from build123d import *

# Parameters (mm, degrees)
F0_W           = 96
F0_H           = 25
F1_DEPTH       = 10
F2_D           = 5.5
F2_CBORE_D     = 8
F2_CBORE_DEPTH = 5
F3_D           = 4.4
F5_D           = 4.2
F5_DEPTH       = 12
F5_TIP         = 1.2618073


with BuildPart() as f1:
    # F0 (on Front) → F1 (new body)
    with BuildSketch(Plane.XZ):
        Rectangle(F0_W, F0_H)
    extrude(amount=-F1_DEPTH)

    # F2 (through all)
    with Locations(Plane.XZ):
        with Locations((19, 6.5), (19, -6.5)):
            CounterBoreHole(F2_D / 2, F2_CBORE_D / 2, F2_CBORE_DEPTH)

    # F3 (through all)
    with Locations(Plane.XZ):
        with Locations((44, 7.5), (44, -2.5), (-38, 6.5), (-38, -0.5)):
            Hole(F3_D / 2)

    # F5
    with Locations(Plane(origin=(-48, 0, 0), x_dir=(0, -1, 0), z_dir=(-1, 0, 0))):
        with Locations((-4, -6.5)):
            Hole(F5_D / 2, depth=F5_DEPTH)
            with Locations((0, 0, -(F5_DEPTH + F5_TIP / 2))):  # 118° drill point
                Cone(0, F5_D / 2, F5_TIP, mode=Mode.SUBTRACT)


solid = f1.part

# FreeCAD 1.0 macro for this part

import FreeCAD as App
import Part
import Sketcher

V = App.Vector
Q = App.Units.Quantity

doc = App.newDocument("Part")
body = doc.addObject("PartDesign::Body", "Body")

# Sketch on XZ plane
sketch1 = body.newObject("Sketcher::SketchObject", "Sketch")
sketch1.AttachmentSupport = (doc.getObject("XZ_Plane"), [""])
sketch1.MapMode = "FlatFace"
sketch1.addGeometry([
    Part.LineSegment(V(-48, 12, 0), V(-48, -12, 0)),
    Part.LineSegment(V(-48, -12, 0), V(48, -12, 0)),
    Part.LineSegment(V(48, -12, 0), V(48, 12, 0)),
    Part.LineSegment(V(48, 12, 0), V(-48, 12, 0)),
], False)
sketch1.addConstraint([
    Sketcher.Constraint("Coincident", 0, 2, 1, 1),
    Sketcher.Constraint("Coincident", 1, 2, 2, 1),
    Sketcher.Constraint("Coincident", 2, 2, 3, 1),
    Sketcher.Constraint("Coincident", 3, 2, 0, 1),
    Sketcher.Constraint("Vertical", 0),
    Sketcher.Constraint("Horizontal", 1),
    Sketcher.Constraint("Vertical", 2),
    Sketcher.Constraint("Horizontal", 3),
    Sketcher.Constraint("Symmetric", 0, 2, 2, 2, -1, 1),
    Sketcher.Constraint("DistanceX", 1, 1, 1, 2, Q("96 mm")),
    Sketcher.Constraint("DistanceY", 0, 2, 0, 1, Q("25 mm")),
])
pad1 = body.newObject("PartDesign::Pad", "Pad")
pad1.Profile = sketch1
pad1.Length = 10
pad1.Reversed = True

# Sketch on XZ plane
sketch2 = body.newObject("Sketcher::SketchObject", "Sketch001")
sketch2.AttachmentSupport = (doc.getObject("XZ_Plane"), [""])
sketch2.MapMode = "FlatFace"
sketch2.addGeometry([
    Part.Circle(V(19, 6.5, 0), V(0, 0, 1), 2.8),
    Part.Circle(V(19, -6.5, 0), V(0, 0, 1), 2.8),
], False)
sketch2.addConstraint([
    Sketcher.Constraint("Equal", 0, 1),
    Sketcher.Constraint("Symmetric", 0, 3, 1, 3, -1),
    Sketcher.Constraint("Diameter", 0, Q("5.5 mm")),
    Sketcher.Constraint("DistanceX", -1, 1, 0, 3, Q("19 mm")),
    Sketcher.Constraint("DistanceY", 1, 3, 0, 3, Q("13 mm")),
])
doc.recompute()
hole = body.newObject("PartDesign::Hole", "Hole")
hole.Profile = sketch2
hole.ThreadType = "None"
hole.Diameter = 5.5
hole.DepthType = "ThroughAll"
hole.HoleCutType = "Counterbore"
hole.HoleCutDiameter = 8
hole.HoleCutDepth = 5

# Sketch on XZ plane
sketch3 = body.newObject("Sketcher::SketchObject", "Sketch002")
sketch3.AttachmentSupport = (doc.getObject("XZ_Plane"), [""])
sketch3.MapMode = "FlatFace"
sketch3.addGeometry([
    Part.Circle(V(44, 7.5, 0), V(0, 0, 1), 2.2),
    Part.Circle(V(44, -2.5, 0), V(0, 0, 1), 2.2),
    Part.Circle(V(-38, 6.5, 0), V(0, 0, 1), 2.2),
    Part.Circle(V(-38, -0.5, 0), V(0, 0, 1), 2.2),
], False)
sketch3.addConstraint([
    Sketcher.Constraint("Equal", 0, 1),
    Sketcher.Constraint("Equal", 1, 2),
    Sketcher.Constraint("Equal", 2, 3),
    Sketcher.Constraint("Vertical", 0, 3, 1, 3),
    Sketcher.Constraint("Vertical", 2, 3, 3, 3),
    Sketcher.Constraint("Diameter", 0, Q("4.4 mm")),
    Sketcher.Constraint("DistanceX", -1, 1, 0, 3, Q("44 mm")),
    Sketcher.Constraint("DistanceX", 2, 3, -1, 1, Q("38 mm")),
    Sketcher.Constraint("DistanceY", 1, 3, 0, 3, Q("10 mm")),
    Sketcher.Constraint("DistanceY", 2, 3, 0, 3, Q("1 mm")),
    Sketcher.Constraint("DistanceY", 3, 3, 2, 3, Q("7 mm")),
    Sketcher.Constraint("DistanceY", -1, 1, 0, 3, Q("7.5 mm")),
])
doc.recompute()
hole2 = body.newObject("PartDesign::Hole", "Hole001")
hole2.Profile = sketch3
hole2.ThreadType = "None"
hole2.Diameter = 4.4
hole2.DepthType = "ThroughAll"

# Sketch on YZ plane
sketch4 = body.newObject("Sketcher::SketchObject", "Sketch003")
sketch4.AttachmentSupport = (doc.getObject("YZ_Plane"), [""])
sketch4.MapMode = "FlatFace"
sketch4.AttachmentOffset = App.Placement(V(0, 0, -48), App.Rotation())
sketch4.addGeometry(Part.Circle(V(4, -6.5, 0), V(0, 0, 1), 2.1), False)
sketch4.addConstraint([
    Sketcher.Constraint("Diameter", 0, Q("4.2 mm")),
    Sketcher.Constraint("DistanceX", -1, 1, 0, 3, Q("4 mm")),
    Sketcher.Constraint("DistanceY", 0, 3, -1, 1, Q("6.5 mm")),
])
doc.recompute()
hole3 = body.newObject("PartDesign::Hole", "Hole002")
hole3.Profile = sketch4
hole3.ThreadType = "None"
hole3.Diameter = 4.2
hole3.DepthType = "Dimension"
hole3.Depth = 12
hole3.DrillPoint = "Angled"
hole3.DrillPointAngle = 118
hole3.Reversed = True

doc.recompute()
